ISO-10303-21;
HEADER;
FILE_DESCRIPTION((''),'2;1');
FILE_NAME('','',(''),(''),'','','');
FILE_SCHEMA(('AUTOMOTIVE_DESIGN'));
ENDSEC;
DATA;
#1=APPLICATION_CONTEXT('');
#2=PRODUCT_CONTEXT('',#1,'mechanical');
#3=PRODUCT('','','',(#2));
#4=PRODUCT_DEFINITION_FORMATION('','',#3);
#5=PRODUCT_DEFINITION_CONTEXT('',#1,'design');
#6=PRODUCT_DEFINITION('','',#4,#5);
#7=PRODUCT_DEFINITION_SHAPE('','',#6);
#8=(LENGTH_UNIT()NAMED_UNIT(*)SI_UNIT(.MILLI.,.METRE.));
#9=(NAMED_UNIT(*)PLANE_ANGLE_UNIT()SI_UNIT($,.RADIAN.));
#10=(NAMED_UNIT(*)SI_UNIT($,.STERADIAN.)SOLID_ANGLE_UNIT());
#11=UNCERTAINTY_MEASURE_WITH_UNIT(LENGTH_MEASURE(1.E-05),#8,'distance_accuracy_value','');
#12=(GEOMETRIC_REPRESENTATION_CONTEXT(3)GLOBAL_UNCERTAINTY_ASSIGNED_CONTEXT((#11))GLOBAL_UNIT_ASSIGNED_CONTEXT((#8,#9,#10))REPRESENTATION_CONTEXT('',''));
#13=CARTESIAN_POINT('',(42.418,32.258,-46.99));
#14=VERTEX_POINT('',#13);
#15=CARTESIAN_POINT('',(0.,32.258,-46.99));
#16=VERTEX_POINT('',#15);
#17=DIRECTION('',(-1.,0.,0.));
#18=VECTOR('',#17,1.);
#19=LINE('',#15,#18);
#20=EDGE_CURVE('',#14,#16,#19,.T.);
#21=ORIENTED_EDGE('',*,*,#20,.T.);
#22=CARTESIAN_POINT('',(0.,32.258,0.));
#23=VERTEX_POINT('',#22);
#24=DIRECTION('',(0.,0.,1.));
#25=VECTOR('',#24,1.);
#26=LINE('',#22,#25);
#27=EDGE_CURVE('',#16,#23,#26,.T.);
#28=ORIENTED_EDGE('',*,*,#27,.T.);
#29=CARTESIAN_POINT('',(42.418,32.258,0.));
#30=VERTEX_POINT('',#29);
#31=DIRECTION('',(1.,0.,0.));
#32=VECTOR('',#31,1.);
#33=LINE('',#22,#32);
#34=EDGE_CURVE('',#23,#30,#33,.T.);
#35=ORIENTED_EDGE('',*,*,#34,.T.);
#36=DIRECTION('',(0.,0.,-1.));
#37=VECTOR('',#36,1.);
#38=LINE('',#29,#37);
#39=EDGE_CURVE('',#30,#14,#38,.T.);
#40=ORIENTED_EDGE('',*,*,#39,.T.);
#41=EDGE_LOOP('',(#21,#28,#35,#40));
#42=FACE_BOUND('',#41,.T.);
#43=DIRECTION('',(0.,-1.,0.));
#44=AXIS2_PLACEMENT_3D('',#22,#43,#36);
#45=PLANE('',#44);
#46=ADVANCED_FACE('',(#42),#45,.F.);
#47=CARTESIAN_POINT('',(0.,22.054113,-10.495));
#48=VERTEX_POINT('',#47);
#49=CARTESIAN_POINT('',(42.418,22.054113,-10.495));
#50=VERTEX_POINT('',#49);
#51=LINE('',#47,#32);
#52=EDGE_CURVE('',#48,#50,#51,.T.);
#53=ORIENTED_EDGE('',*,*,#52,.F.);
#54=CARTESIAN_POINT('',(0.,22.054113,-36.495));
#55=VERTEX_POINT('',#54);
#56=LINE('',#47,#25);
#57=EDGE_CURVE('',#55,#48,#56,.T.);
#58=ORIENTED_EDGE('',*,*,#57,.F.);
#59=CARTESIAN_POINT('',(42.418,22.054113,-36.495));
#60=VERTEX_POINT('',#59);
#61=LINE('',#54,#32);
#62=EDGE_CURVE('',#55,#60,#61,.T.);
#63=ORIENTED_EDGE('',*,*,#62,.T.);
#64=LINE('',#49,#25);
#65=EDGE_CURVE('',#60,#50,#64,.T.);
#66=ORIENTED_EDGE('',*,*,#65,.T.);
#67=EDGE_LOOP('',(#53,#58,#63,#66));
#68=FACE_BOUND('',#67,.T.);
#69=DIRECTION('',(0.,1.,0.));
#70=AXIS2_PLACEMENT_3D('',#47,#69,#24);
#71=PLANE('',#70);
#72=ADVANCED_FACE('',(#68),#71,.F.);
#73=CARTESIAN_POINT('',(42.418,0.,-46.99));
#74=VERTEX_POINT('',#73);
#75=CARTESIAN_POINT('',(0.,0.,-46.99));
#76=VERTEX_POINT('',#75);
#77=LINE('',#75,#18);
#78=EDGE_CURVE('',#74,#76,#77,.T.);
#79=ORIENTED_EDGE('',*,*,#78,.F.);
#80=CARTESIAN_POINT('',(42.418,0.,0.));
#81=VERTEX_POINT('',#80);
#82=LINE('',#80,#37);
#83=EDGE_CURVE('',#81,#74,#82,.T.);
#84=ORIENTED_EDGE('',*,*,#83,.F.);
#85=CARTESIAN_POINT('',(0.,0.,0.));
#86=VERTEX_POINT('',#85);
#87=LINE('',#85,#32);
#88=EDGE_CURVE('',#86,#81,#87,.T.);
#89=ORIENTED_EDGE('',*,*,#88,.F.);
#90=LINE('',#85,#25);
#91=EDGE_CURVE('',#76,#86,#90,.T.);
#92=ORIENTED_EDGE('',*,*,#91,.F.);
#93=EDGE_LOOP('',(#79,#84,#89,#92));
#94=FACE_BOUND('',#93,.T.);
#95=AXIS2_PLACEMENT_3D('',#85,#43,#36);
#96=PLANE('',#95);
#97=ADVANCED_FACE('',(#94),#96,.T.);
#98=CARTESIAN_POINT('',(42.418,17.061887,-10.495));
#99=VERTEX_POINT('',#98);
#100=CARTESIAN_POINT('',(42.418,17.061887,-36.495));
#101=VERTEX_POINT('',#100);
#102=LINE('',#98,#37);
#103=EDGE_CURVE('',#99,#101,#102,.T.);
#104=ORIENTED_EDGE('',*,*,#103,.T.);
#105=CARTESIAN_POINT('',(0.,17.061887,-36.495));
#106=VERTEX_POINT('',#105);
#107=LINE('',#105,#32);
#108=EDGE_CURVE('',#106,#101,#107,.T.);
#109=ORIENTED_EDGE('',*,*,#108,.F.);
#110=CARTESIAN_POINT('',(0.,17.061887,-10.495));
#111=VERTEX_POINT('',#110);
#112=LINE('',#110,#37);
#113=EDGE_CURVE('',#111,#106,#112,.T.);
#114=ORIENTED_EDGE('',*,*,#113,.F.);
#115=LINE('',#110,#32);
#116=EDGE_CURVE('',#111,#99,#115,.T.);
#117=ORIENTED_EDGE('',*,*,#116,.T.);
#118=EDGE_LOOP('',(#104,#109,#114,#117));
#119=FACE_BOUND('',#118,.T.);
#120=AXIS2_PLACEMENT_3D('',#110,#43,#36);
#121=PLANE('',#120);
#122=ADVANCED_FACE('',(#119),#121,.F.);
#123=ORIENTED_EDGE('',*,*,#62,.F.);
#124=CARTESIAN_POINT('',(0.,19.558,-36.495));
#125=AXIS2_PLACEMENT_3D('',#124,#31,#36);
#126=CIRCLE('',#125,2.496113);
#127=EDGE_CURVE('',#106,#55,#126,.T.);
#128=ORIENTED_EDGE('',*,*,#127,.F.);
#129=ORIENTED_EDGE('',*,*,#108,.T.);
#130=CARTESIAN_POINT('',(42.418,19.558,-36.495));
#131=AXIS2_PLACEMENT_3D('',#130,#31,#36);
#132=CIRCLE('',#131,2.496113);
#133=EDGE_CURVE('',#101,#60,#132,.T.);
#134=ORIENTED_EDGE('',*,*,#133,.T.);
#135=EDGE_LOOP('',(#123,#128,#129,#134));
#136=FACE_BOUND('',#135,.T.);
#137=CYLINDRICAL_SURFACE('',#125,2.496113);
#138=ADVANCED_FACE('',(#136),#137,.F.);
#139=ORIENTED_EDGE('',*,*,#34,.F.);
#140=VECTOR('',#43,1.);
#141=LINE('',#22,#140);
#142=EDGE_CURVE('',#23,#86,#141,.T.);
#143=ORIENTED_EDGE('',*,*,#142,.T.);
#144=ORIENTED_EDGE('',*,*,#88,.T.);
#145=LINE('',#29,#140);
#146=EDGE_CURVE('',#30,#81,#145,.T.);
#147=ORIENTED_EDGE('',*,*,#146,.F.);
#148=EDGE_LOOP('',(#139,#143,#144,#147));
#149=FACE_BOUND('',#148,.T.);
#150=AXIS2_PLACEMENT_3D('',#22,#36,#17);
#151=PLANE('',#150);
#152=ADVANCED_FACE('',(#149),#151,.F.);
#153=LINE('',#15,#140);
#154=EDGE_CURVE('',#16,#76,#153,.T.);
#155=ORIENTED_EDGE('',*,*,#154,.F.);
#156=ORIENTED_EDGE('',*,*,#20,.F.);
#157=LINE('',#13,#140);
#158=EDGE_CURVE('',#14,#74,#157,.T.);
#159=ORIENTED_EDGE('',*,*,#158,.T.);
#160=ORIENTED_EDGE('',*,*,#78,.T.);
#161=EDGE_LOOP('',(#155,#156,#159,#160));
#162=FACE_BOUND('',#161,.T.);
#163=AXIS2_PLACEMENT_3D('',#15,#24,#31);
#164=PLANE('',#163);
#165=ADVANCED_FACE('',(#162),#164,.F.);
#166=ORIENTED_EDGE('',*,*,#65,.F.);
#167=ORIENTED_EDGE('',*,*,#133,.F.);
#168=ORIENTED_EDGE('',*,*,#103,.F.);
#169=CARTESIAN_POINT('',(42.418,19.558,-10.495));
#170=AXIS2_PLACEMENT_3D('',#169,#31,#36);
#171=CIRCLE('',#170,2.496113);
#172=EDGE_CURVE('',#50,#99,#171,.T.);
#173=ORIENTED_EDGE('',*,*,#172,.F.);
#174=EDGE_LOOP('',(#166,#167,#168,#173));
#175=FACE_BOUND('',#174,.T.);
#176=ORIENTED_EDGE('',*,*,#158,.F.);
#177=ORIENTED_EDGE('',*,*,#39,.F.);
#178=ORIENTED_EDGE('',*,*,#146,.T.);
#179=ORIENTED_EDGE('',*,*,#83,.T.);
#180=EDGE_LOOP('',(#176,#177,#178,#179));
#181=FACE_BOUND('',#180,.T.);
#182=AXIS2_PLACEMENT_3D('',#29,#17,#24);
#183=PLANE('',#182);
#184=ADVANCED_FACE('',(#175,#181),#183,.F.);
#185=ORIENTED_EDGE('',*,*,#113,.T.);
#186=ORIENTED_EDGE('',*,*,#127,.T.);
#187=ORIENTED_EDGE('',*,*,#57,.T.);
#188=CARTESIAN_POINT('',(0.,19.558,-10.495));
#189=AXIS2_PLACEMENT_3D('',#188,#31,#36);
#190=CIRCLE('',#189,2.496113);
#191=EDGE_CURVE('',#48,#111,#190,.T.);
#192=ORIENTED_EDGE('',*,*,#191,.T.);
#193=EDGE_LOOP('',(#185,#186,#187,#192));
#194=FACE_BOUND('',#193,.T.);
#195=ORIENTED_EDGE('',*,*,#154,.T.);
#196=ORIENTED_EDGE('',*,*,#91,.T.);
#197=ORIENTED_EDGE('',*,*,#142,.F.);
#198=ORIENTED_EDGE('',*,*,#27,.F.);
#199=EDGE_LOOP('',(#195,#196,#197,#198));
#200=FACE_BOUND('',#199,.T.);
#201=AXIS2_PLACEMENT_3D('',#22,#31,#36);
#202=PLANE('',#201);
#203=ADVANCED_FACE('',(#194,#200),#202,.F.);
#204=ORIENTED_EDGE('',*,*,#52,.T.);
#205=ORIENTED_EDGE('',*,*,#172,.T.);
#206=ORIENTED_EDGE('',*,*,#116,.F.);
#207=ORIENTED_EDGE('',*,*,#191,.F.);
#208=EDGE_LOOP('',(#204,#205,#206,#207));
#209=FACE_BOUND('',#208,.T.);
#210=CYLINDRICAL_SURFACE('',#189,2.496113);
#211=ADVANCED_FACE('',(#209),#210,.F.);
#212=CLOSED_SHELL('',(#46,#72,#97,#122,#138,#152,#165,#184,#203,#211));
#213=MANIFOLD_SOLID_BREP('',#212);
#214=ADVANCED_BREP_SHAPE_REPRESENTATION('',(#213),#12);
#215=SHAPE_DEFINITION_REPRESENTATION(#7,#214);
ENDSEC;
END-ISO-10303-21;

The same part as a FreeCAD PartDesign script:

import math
import FreeCAD as App
import Part
import Sketcher
Q = App.Units.Quantity


def add_polygon(sketch, points):
    """Adds a closed chain of lines whose ends are joined by coincident constraints."""
    first, n = sketch.GeometryCount, len(points)
    for a, b in zip(points, points[1:] + points[:1]):
        sketch.addGeometry(Part.LineSegment(App.Vector(*a, 0), App.Vector(*b, 0)), False)
    for i in range(n):
        sketch.addConstraint(Sketcher.Constraint("Coincident", first + i, 2, first + (i + 1) % n, 1))

doc = App.newDocument("Part")
body = doc.addObject("PartDesign::Body", "Body")

# Sketch on XZ plane
sketch1 = body.newObject("Sketcher::SketchObject", "Sketch")
sketch1.AttachmentSupport = (doc.getObject("XZ_Plane"), [""])
sketch1.MapMode = "FlatFace"
add_polygon(sketch1, [(0, -47), (0, 0), (42, 0), (42, -47)])  # lines 0-3
sketch1.addConstraint([
    Sketcher.Constraint("Vertical", 0),
    Sketcher.Constraint("Horizontal", 1),
    Sketcher.Constraint("Vertical", 2),
    Sketcher.Constraint("Horizontal", 3),
    Sketcher.Constraint("Coincident", 0, 2, -1, 1),
    Sketcher.Constraint("DistanceX", 1, 1, 1, 2, Q("1.67 in")),
    Sketcher.Constraint("DistanceY", 0, 1, 0, 2, Q("1.85 in")),
])
pad1 = body.newObject("PartDesign::Pad", "Pad")
pad1.Profile = sketch1
pad1.Length = Q("1.27 in")
pad1.Reversed = True

# Sketch on YZ plane
sketch2 = body.newObject("Sketcher::SketchObject", "Sketch001")
sketch2.AttachmentSupport = (doc.getObject("YZ_Plane"), [""])
sketch2.MapMode = "FlatFace"
sketch2.AttachmentOffset = App.Placement(App.Vector(0, 0, 1.67 * 25.4), App.Rotation())
sketch2.addGeometry([
    Part.LineSegment(App.Vector(22.1, -36.5, 0), App.Vector(22.1, -10.5, 0)),
    Part.ArcOfCircle(Part.Circle(App.Vector(19.6, -10.5, 0), App.Vector(0, 0, 1), 2.5), math.radians(0), math.radians(180)),
    Part.LineSegment(App.Vector(17.1, -10.5, 0), App.Vector(17.1, -36.5, 0)),
    Part.ArcOfCircle(Part.Circle(App.Vector(19.6, -36.5, 0), App.Vector(0, 0, 1), 2.5), math.radians(180), math.radians(360)),
], False)
sketch2.addConstraint([
    Sketcher.Constraint("Tangent", 0, 2, 1, 1),
    Sketcher.Constraint("Tangent", 1, 2, 2, 1),
    Sketcher.Constraint("Tangent", 2, 2, 3, 1),
    Sketcher.Constraint("Tangent", 3, 2, 0, 1),
    Sketcher.Constraint("Vertical", 0),
    Sketcher.Constraint("Vertical", 2),
    Sketcher.Constraint("DistanceX", -1, 1, 1, 3, Q("0.77 in")),
    Sketcher.Constraint("DistanceY", 0, 1, 0, 2, 26.0),
    Sketcher.Constraint("Radius", 1, 2.496113),
    Sketcher.Constraint("DistanceY", 1, 3, -1, 1, 10.495),
])
pocket1 = body.newObject("PartDesign::Pocket", "Pocket")
pocket1.Profile = sketch2
pocket1.Type = "ThroughAll"

doc.recompute()
